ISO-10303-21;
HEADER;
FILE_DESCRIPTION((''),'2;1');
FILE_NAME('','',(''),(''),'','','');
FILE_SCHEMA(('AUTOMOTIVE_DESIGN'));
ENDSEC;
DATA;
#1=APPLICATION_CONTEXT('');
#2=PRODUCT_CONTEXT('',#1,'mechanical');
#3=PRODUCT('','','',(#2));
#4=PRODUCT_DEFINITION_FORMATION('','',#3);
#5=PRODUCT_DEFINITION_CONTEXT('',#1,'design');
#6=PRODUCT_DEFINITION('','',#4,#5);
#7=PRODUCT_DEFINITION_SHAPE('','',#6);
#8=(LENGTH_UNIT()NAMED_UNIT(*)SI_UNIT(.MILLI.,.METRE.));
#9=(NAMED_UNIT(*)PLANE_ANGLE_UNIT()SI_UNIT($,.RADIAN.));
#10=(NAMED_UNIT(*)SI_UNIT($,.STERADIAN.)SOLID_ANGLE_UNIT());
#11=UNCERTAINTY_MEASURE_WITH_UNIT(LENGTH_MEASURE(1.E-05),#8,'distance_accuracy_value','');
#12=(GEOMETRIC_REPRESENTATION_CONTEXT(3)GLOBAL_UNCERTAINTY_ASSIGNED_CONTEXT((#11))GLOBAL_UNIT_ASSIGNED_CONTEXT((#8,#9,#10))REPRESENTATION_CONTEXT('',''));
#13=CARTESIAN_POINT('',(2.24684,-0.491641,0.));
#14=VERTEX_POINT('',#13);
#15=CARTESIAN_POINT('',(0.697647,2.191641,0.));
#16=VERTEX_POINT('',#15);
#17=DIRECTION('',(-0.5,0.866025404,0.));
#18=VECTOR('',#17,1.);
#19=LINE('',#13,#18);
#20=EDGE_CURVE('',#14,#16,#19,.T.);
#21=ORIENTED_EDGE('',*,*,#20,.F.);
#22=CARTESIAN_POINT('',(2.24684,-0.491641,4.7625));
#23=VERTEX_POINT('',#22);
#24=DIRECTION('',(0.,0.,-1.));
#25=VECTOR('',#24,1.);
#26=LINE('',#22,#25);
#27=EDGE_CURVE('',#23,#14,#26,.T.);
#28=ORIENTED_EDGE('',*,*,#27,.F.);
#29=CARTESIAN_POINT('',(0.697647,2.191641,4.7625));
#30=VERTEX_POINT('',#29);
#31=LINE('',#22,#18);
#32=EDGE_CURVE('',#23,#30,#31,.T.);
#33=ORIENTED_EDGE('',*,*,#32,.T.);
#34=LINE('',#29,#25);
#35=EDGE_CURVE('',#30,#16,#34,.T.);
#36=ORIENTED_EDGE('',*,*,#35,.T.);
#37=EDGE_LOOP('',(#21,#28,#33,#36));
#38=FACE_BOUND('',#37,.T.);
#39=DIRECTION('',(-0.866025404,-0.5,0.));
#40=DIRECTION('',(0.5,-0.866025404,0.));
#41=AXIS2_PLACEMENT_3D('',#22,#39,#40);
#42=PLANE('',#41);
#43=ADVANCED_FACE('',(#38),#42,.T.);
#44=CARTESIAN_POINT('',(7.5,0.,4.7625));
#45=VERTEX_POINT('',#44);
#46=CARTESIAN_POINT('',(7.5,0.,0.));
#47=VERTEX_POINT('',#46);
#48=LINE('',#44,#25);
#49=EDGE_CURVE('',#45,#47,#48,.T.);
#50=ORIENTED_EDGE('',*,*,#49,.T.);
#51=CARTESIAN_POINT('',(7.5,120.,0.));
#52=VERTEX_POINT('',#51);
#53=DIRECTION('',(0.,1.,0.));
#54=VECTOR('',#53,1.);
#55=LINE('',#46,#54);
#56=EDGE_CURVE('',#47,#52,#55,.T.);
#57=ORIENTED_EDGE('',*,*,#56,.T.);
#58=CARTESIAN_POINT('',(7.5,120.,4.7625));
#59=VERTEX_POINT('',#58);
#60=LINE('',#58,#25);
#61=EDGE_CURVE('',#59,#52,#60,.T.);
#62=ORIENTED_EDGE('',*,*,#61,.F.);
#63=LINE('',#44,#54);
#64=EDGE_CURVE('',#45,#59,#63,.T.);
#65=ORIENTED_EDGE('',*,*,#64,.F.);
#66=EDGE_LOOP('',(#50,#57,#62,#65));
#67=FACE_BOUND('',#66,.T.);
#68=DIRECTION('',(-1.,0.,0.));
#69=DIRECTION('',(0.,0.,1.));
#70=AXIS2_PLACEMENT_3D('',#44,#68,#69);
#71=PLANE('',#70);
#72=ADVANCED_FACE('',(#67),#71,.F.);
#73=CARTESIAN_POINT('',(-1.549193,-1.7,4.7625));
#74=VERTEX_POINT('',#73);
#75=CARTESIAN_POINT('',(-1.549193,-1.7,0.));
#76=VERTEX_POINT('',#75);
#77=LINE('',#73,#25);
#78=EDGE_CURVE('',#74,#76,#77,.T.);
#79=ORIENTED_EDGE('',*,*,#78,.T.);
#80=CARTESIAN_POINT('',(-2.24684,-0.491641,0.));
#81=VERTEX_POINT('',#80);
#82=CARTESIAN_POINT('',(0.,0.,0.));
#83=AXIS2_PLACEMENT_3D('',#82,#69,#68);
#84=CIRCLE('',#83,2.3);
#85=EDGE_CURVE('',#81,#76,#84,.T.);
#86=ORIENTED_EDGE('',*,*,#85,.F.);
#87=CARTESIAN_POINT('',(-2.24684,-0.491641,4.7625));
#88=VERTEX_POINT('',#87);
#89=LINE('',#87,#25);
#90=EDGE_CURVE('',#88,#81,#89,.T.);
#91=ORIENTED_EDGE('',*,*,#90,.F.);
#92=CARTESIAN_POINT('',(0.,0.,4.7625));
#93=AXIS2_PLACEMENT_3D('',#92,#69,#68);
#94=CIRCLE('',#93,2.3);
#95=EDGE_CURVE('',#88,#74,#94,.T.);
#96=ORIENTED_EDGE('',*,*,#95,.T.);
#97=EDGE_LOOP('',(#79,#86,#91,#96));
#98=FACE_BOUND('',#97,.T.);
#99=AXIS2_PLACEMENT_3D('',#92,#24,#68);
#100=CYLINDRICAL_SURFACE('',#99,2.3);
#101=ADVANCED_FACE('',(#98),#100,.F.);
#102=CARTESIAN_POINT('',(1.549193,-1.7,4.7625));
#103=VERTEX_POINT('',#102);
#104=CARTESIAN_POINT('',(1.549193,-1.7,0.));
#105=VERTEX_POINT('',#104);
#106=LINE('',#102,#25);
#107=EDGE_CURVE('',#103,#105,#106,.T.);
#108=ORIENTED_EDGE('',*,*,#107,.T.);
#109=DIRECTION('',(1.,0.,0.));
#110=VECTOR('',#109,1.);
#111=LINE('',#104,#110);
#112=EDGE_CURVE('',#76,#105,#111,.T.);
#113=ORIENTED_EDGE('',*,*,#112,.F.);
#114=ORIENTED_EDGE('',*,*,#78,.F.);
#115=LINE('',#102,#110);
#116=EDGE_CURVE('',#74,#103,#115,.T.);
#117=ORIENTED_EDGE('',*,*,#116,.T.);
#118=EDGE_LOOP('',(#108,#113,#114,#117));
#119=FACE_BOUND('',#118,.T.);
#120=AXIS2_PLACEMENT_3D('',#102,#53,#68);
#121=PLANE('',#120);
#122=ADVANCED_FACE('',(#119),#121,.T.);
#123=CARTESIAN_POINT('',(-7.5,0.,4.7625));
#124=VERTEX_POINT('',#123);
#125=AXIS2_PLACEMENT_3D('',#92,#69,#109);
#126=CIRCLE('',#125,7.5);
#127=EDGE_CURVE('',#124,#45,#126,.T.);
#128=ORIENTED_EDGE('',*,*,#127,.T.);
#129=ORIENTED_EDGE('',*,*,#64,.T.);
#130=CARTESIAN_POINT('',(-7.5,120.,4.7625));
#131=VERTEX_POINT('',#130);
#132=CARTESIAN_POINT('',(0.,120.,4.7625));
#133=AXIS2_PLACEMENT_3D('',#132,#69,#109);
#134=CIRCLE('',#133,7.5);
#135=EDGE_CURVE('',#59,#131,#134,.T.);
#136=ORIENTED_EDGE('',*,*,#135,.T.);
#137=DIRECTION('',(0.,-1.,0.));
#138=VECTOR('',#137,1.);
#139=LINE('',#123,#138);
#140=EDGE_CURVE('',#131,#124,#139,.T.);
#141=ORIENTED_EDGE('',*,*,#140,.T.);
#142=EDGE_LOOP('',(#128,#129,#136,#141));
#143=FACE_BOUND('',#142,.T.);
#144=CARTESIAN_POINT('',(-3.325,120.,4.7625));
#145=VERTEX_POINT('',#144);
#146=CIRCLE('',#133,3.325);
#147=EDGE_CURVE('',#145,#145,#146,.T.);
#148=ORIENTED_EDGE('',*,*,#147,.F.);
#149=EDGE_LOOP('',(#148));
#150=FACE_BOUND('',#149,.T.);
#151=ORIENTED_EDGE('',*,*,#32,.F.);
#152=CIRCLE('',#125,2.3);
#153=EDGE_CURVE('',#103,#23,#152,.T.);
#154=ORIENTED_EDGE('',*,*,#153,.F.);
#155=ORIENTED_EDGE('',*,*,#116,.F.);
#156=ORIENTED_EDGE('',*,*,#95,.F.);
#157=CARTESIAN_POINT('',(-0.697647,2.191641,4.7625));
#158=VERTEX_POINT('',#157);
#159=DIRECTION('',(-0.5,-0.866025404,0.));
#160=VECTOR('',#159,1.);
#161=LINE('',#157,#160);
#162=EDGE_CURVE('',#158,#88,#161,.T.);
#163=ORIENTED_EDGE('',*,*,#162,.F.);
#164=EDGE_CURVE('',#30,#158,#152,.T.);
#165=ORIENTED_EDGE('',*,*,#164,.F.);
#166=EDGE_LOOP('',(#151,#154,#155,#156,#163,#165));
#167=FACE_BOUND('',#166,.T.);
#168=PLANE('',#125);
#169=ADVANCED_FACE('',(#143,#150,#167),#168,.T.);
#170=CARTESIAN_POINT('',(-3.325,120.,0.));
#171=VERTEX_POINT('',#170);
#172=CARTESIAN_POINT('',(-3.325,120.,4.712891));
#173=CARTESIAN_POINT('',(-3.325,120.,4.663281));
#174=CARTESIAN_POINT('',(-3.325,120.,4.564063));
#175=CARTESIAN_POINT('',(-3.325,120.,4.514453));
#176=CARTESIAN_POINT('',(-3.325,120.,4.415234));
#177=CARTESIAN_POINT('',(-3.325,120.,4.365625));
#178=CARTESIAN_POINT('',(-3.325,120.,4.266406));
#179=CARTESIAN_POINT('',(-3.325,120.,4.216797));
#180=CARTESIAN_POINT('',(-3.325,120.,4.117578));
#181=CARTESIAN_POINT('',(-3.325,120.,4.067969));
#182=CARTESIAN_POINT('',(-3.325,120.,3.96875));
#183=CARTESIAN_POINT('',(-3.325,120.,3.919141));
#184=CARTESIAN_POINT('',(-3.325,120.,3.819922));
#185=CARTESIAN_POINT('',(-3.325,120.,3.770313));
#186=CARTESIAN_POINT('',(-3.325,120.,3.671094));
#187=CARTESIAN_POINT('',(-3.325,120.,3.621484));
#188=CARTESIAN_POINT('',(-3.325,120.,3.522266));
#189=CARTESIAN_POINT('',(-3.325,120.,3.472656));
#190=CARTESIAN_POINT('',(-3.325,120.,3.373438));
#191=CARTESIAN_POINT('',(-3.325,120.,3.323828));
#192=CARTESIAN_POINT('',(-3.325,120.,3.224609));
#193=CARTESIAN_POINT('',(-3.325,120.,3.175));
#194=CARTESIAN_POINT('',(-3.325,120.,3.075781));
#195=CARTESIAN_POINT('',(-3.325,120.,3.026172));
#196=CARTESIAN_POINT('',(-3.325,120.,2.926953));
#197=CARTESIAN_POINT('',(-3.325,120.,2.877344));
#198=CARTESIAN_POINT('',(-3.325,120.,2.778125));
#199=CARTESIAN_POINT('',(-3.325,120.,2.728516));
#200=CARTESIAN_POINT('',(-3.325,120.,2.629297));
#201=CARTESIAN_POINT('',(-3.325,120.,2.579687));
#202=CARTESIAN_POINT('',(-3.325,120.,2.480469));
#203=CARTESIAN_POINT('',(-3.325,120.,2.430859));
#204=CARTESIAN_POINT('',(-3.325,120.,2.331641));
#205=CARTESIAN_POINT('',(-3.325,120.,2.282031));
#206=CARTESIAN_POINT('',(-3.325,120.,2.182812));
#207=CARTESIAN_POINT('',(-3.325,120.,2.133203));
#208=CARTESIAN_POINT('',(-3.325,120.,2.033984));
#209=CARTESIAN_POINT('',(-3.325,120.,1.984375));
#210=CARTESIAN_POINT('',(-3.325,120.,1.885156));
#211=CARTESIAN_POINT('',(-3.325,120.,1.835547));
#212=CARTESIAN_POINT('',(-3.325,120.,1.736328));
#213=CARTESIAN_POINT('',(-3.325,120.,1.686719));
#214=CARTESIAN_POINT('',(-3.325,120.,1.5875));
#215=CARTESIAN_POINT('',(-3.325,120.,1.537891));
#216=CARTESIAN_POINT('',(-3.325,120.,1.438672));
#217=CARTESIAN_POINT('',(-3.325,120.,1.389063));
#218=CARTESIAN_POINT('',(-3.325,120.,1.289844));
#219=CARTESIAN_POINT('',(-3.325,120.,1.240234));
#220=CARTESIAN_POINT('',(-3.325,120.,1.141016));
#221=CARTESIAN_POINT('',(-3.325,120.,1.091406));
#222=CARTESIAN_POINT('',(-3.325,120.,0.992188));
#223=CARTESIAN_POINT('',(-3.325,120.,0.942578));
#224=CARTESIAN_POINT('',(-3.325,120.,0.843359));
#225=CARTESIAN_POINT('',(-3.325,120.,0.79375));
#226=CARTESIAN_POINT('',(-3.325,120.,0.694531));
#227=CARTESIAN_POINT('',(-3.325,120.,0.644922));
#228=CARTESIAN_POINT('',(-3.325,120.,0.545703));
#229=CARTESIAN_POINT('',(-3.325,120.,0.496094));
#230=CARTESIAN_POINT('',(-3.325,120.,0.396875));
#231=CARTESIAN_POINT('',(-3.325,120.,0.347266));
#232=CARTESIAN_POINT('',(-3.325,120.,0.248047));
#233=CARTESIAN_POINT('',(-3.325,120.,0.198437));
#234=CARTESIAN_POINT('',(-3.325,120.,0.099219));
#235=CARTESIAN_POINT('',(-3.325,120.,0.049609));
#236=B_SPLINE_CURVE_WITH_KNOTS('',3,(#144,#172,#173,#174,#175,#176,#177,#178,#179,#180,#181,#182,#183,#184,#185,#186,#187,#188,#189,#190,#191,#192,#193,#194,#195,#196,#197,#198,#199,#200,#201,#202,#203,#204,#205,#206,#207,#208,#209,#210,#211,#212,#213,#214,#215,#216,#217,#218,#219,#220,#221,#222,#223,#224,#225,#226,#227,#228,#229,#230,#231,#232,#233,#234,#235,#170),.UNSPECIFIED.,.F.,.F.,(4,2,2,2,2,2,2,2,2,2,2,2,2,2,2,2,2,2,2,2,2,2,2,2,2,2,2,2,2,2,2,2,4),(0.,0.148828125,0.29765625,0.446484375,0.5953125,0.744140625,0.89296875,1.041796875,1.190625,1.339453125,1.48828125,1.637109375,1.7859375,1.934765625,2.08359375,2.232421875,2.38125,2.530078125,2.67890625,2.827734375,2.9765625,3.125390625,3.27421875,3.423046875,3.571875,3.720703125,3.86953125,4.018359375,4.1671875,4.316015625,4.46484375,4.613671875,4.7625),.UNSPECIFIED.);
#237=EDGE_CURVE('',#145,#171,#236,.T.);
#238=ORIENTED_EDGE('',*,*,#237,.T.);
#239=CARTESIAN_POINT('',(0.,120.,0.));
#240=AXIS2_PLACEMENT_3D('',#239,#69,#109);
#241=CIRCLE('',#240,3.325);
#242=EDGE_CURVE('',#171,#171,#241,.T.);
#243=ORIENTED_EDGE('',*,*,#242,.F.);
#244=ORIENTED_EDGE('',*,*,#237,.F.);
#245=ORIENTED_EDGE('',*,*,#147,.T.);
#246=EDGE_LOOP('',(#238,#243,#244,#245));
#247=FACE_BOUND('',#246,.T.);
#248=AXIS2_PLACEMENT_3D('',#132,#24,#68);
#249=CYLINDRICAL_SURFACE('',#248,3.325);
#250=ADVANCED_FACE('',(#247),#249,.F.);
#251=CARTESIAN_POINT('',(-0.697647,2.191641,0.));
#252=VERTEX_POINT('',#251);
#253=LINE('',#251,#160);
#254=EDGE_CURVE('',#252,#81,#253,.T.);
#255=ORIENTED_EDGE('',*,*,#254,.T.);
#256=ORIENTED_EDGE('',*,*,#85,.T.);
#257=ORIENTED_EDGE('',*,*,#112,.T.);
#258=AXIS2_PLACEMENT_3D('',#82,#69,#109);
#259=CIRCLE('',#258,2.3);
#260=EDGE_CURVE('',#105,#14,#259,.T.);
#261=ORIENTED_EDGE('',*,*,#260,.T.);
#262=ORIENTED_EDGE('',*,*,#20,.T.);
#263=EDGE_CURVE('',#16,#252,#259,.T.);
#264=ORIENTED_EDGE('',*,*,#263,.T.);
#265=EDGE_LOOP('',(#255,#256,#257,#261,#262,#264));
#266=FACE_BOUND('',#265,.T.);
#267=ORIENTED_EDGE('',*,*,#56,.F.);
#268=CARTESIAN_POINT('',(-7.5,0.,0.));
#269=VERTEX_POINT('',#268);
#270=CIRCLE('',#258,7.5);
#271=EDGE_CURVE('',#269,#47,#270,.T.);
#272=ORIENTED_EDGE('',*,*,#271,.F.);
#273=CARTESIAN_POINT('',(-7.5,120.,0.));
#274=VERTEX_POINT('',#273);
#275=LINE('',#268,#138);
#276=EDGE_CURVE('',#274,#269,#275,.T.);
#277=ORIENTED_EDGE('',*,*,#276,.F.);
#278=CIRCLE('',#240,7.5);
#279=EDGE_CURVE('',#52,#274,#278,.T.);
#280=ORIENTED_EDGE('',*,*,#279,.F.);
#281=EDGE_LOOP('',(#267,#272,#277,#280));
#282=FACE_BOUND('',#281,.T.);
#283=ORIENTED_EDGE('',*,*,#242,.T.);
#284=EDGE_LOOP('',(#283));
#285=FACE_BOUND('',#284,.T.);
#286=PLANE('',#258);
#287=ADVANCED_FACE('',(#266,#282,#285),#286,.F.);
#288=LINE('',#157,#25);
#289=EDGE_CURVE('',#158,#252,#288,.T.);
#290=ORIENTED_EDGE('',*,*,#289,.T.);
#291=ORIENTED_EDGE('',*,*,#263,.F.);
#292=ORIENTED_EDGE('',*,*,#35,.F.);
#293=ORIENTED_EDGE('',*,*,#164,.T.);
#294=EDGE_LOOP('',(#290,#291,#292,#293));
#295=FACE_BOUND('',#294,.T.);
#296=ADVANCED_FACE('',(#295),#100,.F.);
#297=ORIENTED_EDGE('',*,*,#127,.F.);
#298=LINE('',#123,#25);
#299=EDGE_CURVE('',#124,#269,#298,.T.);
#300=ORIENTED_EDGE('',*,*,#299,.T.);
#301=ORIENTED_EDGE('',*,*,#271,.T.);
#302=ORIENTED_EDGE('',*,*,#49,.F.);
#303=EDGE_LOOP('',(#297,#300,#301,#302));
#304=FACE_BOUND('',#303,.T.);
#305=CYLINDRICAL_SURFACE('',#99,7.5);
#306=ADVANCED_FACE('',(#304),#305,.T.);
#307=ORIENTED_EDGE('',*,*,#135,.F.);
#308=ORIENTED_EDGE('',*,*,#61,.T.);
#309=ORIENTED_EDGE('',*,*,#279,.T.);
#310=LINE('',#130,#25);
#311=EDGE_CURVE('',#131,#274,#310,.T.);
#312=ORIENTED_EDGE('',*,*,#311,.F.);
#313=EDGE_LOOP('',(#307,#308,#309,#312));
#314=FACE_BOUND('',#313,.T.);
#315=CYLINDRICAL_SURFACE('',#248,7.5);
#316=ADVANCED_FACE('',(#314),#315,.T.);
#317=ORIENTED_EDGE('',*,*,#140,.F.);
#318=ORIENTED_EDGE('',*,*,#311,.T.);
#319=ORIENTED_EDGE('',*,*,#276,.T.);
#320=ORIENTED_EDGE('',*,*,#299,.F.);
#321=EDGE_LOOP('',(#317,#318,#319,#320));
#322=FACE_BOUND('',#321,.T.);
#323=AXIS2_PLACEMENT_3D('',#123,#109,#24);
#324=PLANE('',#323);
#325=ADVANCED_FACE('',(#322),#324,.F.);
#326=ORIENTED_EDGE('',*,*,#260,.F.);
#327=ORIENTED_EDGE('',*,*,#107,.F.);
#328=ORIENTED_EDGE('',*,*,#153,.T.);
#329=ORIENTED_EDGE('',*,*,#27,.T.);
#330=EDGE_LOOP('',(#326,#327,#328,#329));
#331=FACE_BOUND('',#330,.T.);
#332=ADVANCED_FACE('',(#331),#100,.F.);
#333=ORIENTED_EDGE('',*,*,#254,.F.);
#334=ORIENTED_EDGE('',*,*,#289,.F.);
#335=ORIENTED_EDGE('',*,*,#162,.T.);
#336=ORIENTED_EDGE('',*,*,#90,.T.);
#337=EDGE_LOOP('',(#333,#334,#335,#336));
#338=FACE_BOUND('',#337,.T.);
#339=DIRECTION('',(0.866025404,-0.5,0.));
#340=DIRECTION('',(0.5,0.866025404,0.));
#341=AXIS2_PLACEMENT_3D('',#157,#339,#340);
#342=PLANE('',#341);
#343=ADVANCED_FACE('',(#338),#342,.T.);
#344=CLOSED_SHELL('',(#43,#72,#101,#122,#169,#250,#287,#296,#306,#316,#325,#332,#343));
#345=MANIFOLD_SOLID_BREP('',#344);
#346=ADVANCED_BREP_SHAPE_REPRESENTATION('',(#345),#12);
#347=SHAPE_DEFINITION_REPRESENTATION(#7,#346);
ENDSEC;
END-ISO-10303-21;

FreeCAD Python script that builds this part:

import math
import FreeCAD as App
import Part
import Sketcher

V = App.Vector
Q = App.Units.Quantity

doc = App.newDocument("Part")
params = doc.addObject("Spreadsheet::Sheet", "Params")
for row, (alias, value) in enumerate([
    ("sketch1_radius", "7.5 mm"),
    ("sketch1_radius2", "2.3 mm"),
    ("sketch1_diameter", "6.65 mm"),
    ("sketch1_height", "120 mm"),
    ("pad1_length", "4.7625 mm"),
], start=1):
    params.set(f"A{row}", alias)
    params.set(f"B{row}", "=" + value)
    params.setAlias(f"B{row}", alias)

body = doc.addObject("PartDesign::Body", "Body")

# Sketch on XY plane
sketch1 = body.newObject("Sketcher::SketchObject", "Sketch")
sketch1.AttachmentSupport = (doc.getObject("XY_Plane"), [""])
sketch1.MapMode = "FlatFace"
sketch1.addGeometry(Part.LineSegment(V(-7.5, 120, 0), V(-7.5, 0, 0)), False)
sketch1.addGeometry(Part.ArcOfCircle(Part.Circle(V(0, 0, 0), V(0, 0, 1), 7.5), math.radians(180), math.radians(360)), False)
sketch1.addGeometry(Part.LineSegment(V(7.5, 0, 0), V(7.5, 120, 0)), False)
sketch1.addGeometry(Part.ArcOfCircle(Part.Circle(V(0, 120, 0), V(0, 0, 1), 7.5), math.radians(0), math.radians(180)), False)
sketch1.addGeometry(Part.ArcOfCircle(Part.Circle(V(0, 0, 0), V(0, 0, 1), 2.3), math.radians(-48), math.radians(-12)), False)
sketch1.addGeometry(Part.LineSegment(V(1.5, -1.7, 0), V(-1.5, -1.7, 0)), False)
sketch1.addGeometry(Part.ArcOfCircle(Part.Circle(V(0, 0, 0), V(0, 0, 1), 2.3), math.radians(-168), math.radians(-132)), False)
sketch1.addGeometry(Part.LineSegment(V(-2.2, -0.5, 0), V(-0.7, 2.2, 0)), False)
sketch1.addGeometry(Part.ArcOfCircle(Part.Circle(V(0, 0, 0), V(0, 0, 1), 2.3), math.radians(72), math.radians(108)), False)
sketch1.addGeometry(Part.LineSegment(V(0.7, 2.2, 0), V(2.2, -0.5, 0)), False)
sketch1.addGeometry(Part.Circle(V(0, 120, 0), V(0, 0, 1), 3.3), False)
sketch1.addConstraint(Sketcher.Constraint("Tangent", 0, 2, 1, 1))
sketch1.addConstraint(Sketcher.Constraint("Tangent", 1, 2, 2, 1))
sketch1.addConstraint(Sketcher.Constraint("Tangent", 2, 2, 3, 1))
sketch1.addConstraint(Sketcher.Constraint("Tangent", 3, 2, 0, 1))
sketch1.addConstraint(Sketcher.Constraint("Coincident", 4, 1, 5, 1))
sketch1.addConstraint(Sketcher.Constraint("Coincident", 5, 2, 6, 2))
sketch1.addConstraint(Sketcher.Constraint("Coincident", 6, 1, 7, 1))
sketch1.addConstraint(Sketcher.Constraint("Coincident", 7, 2, 8, 2))
sketch1.addConstraint(Sketcher.Constraint("Coincident", 8, 1, 9, 1))
sketch1.addConstraint(Sketcher.Constraint("Coincident", 9, 2, 4, 2))
sketch1.addConstraint(Sketcher.Constraint("Vertical", 0))
sketch1.addConstraint(Sketcher.Constraint("Vertical", 2))
sketch1.addConstraint(Sketcher.Constraint("Horizontal", 5))
sketch1.addConstraint(Sketcher.Constraint("Coincident", 1, 3, -1, 1))
sketch1.addConstraint(Sketcher.Constraint("Coincident", 4, 3, -1, 1))
sketch1.addConstraint(Sketcher.Constraint("Coincident", 6, 3, -1, 1))
sketch1.addConstraint(Sketcher.Constraint("Coincident", 8, 3, -1, 1))
sketch1.addConstraint(Sketcher.Constraint("Coincident", 10, 3, 3, 3))
sketch1.addConstraint(Sketcher.Constraint("Equal", 4, 6))
sketch1.addConstraint(Sketcher.Constraint("Equal", 6, 8))
sketch1.addConstraint(Sketcher.Constraint("Horizontal", 7, 2, 8, 1))
sketch1.addConstraint(Sketcher.Constraint("Horizontal", 6, 1, 9, 2))
sketch1.addConstraint(Sketcher.Constraint("Radius", 1, 7.5))
sketch1.addConstraint(Sketcher.Constraint("Radius", 4, 2.3))
sketch1.addConstraint(Sketcher.Constraint("Diameter", 10, 6.65))
sketch1.addConstraint(Sketcher.Constraint("DistanceY", 0, 2, 0, 1, 120.0))
sketch1.addConstraint(Sketcher.Constraint("Angle", 7, Q("60 deg")))
sketch1.addConstraint(Sketcher.Constraint("DistanceY", 4, 1, -1, 1, 1.7))
sketch1.addConstraint(Sketcher.Constraint("DistanceX", 6, 1, -1, 1, 2.24684))
sketch1.setExpression("Constraints[22]", "Params.sketch1_radius")
sketch1.setExpression("Constraints[23]", "Params.sketch1_radius2")
sketch1.setExpression("Constraints[24]", "Params.sketch1_diameter")
sketch1.setExpression("Constraints[25]", "Params.sketch1_height")
pad1 = body.newObject("PartDesign::Pad", "Pad")
pad1.Profile = sketch1
pad1.setExpression("Length", "Params.pad1_length")

doc.recompute()
